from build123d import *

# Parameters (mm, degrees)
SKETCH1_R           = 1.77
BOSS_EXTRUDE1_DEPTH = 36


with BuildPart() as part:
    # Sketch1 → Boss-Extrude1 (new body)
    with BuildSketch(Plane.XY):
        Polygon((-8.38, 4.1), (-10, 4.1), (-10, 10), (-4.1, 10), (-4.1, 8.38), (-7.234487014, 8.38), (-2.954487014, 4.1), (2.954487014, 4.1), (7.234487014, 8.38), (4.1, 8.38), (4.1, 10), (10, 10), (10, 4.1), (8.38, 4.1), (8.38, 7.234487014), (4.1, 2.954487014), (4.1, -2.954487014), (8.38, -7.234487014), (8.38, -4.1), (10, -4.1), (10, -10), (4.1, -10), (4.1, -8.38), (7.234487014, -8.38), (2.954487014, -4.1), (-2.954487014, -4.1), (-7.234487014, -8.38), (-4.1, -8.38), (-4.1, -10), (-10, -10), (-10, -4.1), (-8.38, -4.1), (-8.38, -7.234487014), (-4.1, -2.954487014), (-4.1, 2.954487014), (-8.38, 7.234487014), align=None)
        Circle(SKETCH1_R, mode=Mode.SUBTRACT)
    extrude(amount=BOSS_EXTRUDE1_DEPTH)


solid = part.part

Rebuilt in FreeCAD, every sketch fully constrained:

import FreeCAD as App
import Part
import Sketcher

V = App.Vector
Q = App.Units.Quantity


def add_polygon(sketch, points):
    """Adds a closed chain of lines whose ends are joined by coincident constraints."""
    first, n = sketch.GeometryCount, len(points)
    for a, b in zip(points, points[1:] + points[:1]):
        sketch.addGeometry(Part.LineSegment(App.Vector(*a, 0), App.Vector(*b, 0)), False)
    for i in range(n):
        sketch.addConstraint(Sketcher.Constraint("Coincident", first + i, 2, first + (i + 1) % n, 1))

doc = App.newDocument("Part")
body = doc.addObject("PartDesign::Body", "Body")

sketch1 = body.newObject("Sketcher::SketchObject", "Sketch")
sketch1.AttachmentSupport = (doc.getObject("XY_Plane"), [""])
sketch1.MapMode = "FlatFace"
add_polygon(sketch1, [(-10, 4.1), (-8.38, 4.1), (-8.38, 7.234487), (-4.1, 2.954487), (-4.1, -2.954487), (-8.38, -7.234487), (-8.38, -4.1), (-10, -4.1), (-10, -10), (-4.1, -10), (-4.1, -8.38), (-7.234487, -8.38), (-2.954487, -4.1), (2.954487, -4.1), (7.234487, -8.38), (4.1, -8.38), (4.1, -10), (10, -10), (10, -4.1), (8.38, -4.1), (8.38, -7.234487), (4.1, -2.954487), (4.1, 2.954487), (8.38, 7.234487), (8.38, 4.1), (10, 4.1), (10, 10), (4.1, 10), (4.1, 8.38), (7.234487, 8.38), (2.954487, 4.1), (-2.954487, 4.1), (-7.234487, 8.38), (-4.1, 8.38), (-4.1, 10), (-10, 10)])
sketch1.addGeometry(Part.Circle(V(0, 0, 0), V(0, 0, 1), 1.77), False)
sketch1.addConstraint(Sketcher.Constraint("Horizontal", 0))
sketch1.addConstraint(Sketcher.Constraint("Vertical", 1))
sketch1.addConstraint(Sketcher.Constraint("Vertical", 3))
sketch1.addConstraint(Sketcher.Constraint("Vertical", 5))
sketch1.addConstraint(Sketcher.Constraint("Horizontal", 6))
sketch1.addConstraint(Sketcher.Constraint("Vertical", 7))
sketch1.addConstraint(Sketcher.Constraint("Horizontal", 8))
sketch1.addConstraint(Sketcher.Constraint("Vertical", 9))
sketch1.addConstraint(Sketcher.Constraint("Horizontal", 10))
sketch1.addConstraint(Sketcher.Constraint("Horizontal", 12))
sketch1.addConstraint(Sketcher.Constraint("Horizontal", 14))
sketch1.addConstraint(Sketcher.Constraint("Vertical", 15))
sketch1.addConstraint(Sketcher.Constraint("Horizontal", 16))
sketch1.addConstraint(Sketcher.Constraint("Vertical", 17))
sketch1.addConstraint(Sketcher.Constraint("Horizontal", 18))
sketch1.addConstraint(Sketcher.Constraint("Vertical", 19))
sketch1.addConstraint(Sketcher.Constraint("Vertical", 21))
sketch1.addConstraint(Sketcher.Constraint("Vertical", 23))
sketch1.addConstraint(Sketcher.Constraint("Horizontal", 24))
sketch1.addConstraint(Sketcher.Constraint("Vertical", 25))
sketch1.addConstraint(Sketcher.Constraint("Horizontal", 26))
sketch1.addConstraint(Sketcher.Constraint("Vertical", 27))
sketch1.addConstraint(Sketcher.Constraint("Horizontal", 28))
sketch1.addConstraint(Sketcher.Constraint("Horizontal", 30))
sketch1.addConstraint(Sketcher.Constraint("Horizontal", 32))
sketch1.addConstraint(Sketcher.Constraint("Vertical", 33))
sketch1.addConstraint(Sketcher.Constraint("Horizontal", 34))
sketch1.addConstraint(Sketcher.Constraint("Vertical", 35))
sketch1.addConstraint(Sketcher.Constraint("Coincident", 36, 3, -1, 1))
sketch1.addConstraint(Sketcher.Constraint("Symmetric", 0, 2, 18, 2, -1, 1))
sketch1.addConstraint(Sketcher.Constraint("Symmetric", 2, 2, 20, 2, -1, 1))
sketch1.addConstraint(Sketcher.Constraint("Symmetric", 4, 2, 22, 2, -1, 1))
sketch1.addConstraint(Sketcher.Constraint("Symmetric", 6, 2, 24, 2, -1, 1))
sketch1.addConstraint(Sketcher.Constraint("Symmetric", 8, 2, 26, 2, -1, 1))
sketch1.addConstraint(Sketcher.Constraint("Symmetric", 10, 2, 28, 2, -1, 1))
sketch1.addConstraint(Sketcher.Constraint("Symmetric", 11, 2, 29, 2, -1, 1))
sketch1.addConstraint(Sketcher.Constraint("Symmetric", 13, 2, 31, 2, -1, 1))
sketch1.addConstraint(Sketcher.Constraint("Symmetric", 15, 2, 33, 2, -1, 1))
sketch1.addConstraint(Sketcher.Constraint("Symmetric", 10, 2, 13, 2, -2))
sketch1.addConstraint(Sketcher.Constraint("Symmetric", 8, 2, 15, 2, -2))
sketch1.addConstraint(Sketcher.Constraint("Symmetric", 6, 2, 17, 2, -2))
sketch1.addConstraint(Sketcher.Constraint("Symmetric", 4, 2, 19, 2, -2))
sketch1.addConstraint(Sketcher.Constraint("Perpendicular", 2, 4))
sketch1.addConstraint(Sketcher.Constraint("Parallel", 4, 11))
sketch1.addConstraint(Sketcher.Constraint("Perpendicular", 11, 13))
sketch1.addConstraint(Sketcher.Constraint("Parallel", 13, 20))
sketch1.addConstraint(Sketcher.Constraint("Perpendicular", 20, 22))
sketch1.addConstraint(Sketcher.Constraint("Perpendicular", 29, 31))
sketch1.addConstraint(Sketcher.Constraint("Horizontal", 6, 2, 11, 2))
sketch1.addConstraint(Sketcher.Constraint("Horizontal", 3, 2, 20, 2))
sketch1.addConstraint(Sketcher.Constraint("Vertical", 3, 2, 8, 2))
sketch1.addConstraint(Sketcher.Constraint("Vertical", 7, 2, 34, 2))
sketch1.addConstraint(Sketcher.Constraint("Equal", 32, 1))
sketch1.addConstraint(Sketcher.Constraint("Equal", 30, 3))
sketch1.addConstraint(Sketcher.Constraint("Equal", 34, 7))
sketch1.addConstraint(Sketcher.Constraint("Equal", 24, 9))
sketch1.addConstraint(Sketcher.Constraint("Diameter", 36, Q("3.54 mm")))
sketch1.addConstraint(Sketcher.Constraint("DistanceX", 8, 1, 8, 2, Q("5.9 mm")))
sketch1.addConstraint(Sketcher.Constraint("DistanceX", 6, 2, -1, 1, Q("10 mm")))
sketch1.addConstraint(Sketcher.Constraint("DistanceX", 0, 1, 0, 2, Q("1.62 mm")))
sketch1.addConstraint(Sketcher.Constraint("DistanceX", 10, 2, 10, 1, Q("3.134487 mm")))
pad1 = body.newObject("PartDesign::Pad", "Pad")
pad1.Profile = sketch1
pad1.Length = 36

doc.recompute()
